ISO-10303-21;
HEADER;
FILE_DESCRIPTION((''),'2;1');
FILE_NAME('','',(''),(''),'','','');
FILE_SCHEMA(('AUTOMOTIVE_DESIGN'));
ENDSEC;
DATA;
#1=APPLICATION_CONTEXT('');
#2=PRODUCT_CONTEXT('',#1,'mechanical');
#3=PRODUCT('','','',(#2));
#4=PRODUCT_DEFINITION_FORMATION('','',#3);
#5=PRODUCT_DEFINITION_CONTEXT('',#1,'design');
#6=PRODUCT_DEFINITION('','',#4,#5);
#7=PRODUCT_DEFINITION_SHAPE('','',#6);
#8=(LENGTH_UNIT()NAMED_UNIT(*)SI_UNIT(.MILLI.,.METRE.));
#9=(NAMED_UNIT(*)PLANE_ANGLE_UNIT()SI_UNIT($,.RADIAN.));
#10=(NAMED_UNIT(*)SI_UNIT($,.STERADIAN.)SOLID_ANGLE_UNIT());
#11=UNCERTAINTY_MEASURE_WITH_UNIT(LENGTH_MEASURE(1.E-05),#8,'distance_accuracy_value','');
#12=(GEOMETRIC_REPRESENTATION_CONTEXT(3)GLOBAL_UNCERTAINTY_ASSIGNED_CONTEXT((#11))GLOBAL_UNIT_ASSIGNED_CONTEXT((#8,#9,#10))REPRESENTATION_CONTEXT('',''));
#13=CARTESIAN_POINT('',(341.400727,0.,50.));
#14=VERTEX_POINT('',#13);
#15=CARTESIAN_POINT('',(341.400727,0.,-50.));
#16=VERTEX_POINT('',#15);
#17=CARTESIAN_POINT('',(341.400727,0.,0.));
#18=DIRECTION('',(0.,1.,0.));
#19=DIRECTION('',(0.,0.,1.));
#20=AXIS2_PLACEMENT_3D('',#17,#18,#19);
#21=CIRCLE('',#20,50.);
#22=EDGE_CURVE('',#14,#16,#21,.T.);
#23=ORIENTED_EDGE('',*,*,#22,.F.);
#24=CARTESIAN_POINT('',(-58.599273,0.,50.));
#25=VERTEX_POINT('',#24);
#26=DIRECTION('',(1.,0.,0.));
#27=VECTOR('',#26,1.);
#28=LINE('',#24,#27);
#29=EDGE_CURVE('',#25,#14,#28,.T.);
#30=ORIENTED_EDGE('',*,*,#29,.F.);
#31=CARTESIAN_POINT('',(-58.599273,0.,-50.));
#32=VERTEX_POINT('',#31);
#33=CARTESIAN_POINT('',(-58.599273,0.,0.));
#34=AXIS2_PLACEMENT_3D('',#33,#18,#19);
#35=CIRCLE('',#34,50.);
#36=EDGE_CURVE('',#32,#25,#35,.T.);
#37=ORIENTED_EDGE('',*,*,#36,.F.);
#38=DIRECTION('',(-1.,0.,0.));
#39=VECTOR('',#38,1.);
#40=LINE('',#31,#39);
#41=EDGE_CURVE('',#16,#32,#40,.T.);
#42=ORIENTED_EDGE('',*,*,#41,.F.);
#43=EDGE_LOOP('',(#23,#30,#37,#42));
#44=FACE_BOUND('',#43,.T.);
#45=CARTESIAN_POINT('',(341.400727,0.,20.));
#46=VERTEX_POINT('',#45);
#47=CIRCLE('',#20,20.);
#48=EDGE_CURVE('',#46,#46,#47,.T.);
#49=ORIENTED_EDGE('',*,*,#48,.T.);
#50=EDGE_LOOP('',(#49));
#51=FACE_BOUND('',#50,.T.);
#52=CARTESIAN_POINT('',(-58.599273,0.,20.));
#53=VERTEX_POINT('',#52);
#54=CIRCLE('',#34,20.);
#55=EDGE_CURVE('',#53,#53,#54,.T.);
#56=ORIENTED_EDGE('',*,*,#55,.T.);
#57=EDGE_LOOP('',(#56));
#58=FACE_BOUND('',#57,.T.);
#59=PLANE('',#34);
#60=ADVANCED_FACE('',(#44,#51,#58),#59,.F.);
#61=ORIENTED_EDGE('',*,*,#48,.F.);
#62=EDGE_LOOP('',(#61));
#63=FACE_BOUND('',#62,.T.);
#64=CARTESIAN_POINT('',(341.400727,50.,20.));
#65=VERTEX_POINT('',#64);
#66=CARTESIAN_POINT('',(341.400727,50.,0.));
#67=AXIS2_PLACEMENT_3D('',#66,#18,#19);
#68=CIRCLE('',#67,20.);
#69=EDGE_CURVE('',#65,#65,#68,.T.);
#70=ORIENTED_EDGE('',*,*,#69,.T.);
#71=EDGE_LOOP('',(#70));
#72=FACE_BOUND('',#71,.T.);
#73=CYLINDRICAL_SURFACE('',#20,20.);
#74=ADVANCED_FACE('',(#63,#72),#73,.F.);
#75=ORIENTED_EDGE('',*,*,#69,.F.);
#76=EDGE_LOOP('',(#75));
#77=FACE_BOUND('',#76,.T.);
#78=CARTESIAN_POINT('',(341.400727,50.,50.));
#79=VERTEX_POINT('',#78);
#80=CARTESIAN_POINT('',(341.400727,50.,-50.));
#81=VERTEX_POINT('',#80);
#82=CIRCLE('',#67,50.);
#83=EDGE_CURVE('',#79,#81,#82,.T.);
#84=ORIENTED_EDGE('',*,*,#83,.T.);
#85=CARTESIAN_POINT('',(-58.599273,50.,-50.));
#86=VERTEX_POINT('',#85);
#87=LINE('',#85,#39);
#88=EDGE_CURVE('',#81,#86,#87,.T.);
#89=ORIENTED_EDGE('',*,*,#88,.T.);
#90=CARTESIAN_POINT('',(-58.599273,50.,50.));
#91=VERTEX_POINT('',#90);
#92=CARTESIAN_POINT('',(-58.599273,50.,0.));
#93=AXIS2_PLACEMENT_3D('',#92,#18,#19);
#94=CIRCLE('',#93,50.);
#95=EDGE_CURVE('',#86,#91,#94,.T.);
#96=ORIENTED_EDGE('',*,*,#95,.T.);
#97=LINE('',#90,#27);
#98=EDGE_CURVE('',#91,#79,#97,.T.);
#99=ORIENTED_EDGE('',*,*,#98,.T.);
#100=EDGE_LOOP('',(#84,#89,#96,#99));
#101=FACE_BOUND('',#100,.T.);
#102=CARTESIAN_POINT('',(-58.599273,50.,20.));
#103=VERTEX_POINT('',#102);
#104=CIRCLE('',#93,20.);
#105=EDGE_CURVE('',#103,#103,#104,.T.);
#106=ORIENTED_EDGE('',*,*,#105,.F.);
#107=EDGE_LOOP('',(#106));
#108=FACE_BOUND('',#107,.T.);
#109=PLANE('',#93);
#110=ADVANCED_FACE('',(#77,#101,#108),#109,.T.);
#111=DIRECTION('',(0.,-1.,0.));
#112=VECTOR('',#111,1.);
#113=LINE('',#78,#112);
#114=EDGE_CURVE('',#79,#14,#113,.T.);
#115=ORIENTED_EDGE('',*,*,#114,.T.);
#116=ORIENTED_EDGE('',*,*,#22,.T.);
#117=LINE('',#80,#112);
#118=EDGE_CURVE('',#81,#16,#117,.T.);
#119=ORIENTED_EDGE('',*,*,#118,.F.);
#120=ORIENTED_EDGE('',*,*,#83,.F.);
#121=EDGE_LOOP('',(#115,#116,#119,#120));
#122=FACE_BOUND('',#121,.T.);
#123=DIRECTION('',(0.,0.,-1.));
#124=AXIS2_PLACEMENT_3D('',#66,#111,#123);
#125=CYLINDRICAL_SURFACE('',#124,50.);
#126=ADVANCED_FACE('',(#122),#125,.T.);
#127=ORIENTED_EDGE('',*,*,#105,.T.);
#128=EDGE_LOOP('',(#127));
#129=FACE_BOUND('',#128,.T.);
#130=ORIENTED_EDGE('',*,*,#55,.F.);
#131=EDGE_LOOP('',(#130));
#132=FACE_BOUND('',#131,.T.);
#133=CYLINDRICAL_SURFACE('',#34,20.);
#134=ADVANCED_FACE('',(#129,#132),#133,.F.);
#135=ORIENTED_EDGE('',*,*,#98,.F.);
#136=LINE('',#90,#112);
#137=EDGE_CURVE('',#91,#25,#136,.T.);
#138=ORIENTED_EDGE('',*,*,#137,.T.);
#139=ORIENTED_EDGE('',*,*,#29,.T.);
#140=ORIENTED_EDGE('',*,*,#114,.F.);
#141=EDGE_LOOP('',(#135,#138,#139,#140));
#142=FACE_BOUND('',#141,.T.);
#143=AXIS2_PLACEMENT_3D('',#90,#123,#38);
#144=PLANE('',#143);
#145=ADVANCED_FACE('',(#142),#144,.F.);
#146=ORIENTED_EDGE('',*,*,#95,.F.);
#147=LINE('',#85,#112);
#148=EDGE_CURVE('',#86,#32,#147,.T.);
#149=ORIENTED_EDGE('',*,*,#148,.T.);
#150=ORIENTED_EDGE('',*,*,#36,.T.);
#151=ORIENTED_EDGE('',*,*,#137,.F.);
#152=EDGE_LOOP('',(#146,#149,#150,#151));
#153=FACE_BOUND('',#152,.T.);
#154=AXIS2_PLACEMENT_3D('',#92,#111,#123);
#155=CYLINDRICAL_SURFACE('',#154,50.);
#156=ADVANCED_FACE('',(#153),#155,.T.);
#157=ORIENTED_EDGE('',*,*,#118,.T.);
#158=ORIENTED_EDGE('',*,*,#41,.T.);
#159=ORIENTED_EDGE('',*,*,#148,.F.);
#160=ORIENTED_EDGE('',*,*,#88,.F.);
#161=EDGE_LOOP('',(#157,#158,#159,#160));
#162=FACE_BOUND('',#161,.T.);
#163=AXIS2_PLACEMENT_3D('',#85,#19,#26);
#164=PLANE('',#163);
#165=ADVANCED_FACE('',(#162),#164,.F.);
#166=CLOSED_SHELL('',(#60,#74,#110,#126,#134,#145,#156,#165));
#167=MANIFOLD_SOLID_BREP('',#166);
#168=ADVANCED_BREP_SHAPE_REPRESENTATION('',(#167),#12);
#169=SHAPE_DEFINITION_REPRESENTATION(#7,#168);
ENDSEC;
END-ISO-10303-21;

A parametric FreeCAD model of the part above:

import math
import FreeCAD as App
import Part
import Sketcher

V = App.Vector

doc = App.newDocument("Part")
body = doc.addObject("PartDesign::Body", "Body")

# Sketch on XZ plane
sketch1 = body.newObject("Sketcher::SketchObject", "Sketch")
sketch1.AttachmentSupport = (doc.getObject("XZ_Plane"), [""])
sketch1.MapMode = "FlatFace"
sketch1.addGeometry([
    Part.LineSegment(V(341, -50, 0), V(-59, -50, 0)),
    Part.ArcOfCircle(Part.Circle(V(-59, 0, 0), V(0, 0, 1), 50), math.radians(90), math.radians(270)),
    Part.LineSegment(V(-59, 50, 0), V(341, 50, 0)),
    Part.ArcOfCircle(Part.Circle(V(341, 0, 0), V(0, 0, 1), 50), math.radians(-90), math.radians(90)),
], False)
sketch1.addConstraint([
    Sketcher.Constraint("Tangent", 0, 2, 1, 2),
    Sketcher.Constraint("Tangent", 1, 1, 2, 1),
    Sketcher.Constraint("Tangent", 2, 2, 3, 2),
    Sketcher.Constraint("Tangent", 3, 1, 0, 1),
    Sketcher.Constraint("Horizontal", 0),
    Sketcher.Constraint("Horizontal", 2),
    Sketcher.Constraint("PointOnObject", 1, 3, -1),
    Sketcher.Constraint("Radius", 1, 50.0),
    Sketcher.Constraint("DistanceX", 0, 2, 0, 1, 400.0),
    Sketcher.Constraint("DistanceX", 1, 3, -1, 1, 58.599273),
])
pad1 = body.newObject("PartDesign::Pad", "Pad")
pad1.Profile = sketch1
pad1.Length = 50
pad1.Reversed = True

# Sketch on XZ plane
sketch2 = body.newObject("Sketcher::SketchObject", "Sketch001")
sketch2.AttachmentSupport = (doc.getObject("XZ_Plane"), [""])
sketch2.MapMode = "FlatFace"
sketch2.AttachmentOffset = App.Placement(V(0, 0, -50), App.Rotation())
sketch2.addGeometry([
    Part.Circle(V(-59, 0, 0), V(0, 0, 1), 20),
    Part.Circle(V(341, 0, 0), V(0, 0, 1), 20),
], False)
sketch2.addConstraint([
    Sketcher.Constraint("Equal", 0, 1),
    Sketcher.Constraint("PointOnObject", 0, 3, -1),
    Sketcher.Constraint("PointOnObject", 1, 3, -1),
    Sketcher.Constraint("Diameter", 0, 40.0),
    Sketcher.Constraint("DistanceX", 0, 3, 1, 3, 400.0),
    Sketcher.Constraint("DistanceX", 0, 3, -1, 1, 58.599273),
])
pocket1 = body.newObject("PartDesign::Pocket", "Pocket")
pocket1.Profile = sketch2
pocket1.Length = 50
pocket1.Reversed = True

doc.recompute()
